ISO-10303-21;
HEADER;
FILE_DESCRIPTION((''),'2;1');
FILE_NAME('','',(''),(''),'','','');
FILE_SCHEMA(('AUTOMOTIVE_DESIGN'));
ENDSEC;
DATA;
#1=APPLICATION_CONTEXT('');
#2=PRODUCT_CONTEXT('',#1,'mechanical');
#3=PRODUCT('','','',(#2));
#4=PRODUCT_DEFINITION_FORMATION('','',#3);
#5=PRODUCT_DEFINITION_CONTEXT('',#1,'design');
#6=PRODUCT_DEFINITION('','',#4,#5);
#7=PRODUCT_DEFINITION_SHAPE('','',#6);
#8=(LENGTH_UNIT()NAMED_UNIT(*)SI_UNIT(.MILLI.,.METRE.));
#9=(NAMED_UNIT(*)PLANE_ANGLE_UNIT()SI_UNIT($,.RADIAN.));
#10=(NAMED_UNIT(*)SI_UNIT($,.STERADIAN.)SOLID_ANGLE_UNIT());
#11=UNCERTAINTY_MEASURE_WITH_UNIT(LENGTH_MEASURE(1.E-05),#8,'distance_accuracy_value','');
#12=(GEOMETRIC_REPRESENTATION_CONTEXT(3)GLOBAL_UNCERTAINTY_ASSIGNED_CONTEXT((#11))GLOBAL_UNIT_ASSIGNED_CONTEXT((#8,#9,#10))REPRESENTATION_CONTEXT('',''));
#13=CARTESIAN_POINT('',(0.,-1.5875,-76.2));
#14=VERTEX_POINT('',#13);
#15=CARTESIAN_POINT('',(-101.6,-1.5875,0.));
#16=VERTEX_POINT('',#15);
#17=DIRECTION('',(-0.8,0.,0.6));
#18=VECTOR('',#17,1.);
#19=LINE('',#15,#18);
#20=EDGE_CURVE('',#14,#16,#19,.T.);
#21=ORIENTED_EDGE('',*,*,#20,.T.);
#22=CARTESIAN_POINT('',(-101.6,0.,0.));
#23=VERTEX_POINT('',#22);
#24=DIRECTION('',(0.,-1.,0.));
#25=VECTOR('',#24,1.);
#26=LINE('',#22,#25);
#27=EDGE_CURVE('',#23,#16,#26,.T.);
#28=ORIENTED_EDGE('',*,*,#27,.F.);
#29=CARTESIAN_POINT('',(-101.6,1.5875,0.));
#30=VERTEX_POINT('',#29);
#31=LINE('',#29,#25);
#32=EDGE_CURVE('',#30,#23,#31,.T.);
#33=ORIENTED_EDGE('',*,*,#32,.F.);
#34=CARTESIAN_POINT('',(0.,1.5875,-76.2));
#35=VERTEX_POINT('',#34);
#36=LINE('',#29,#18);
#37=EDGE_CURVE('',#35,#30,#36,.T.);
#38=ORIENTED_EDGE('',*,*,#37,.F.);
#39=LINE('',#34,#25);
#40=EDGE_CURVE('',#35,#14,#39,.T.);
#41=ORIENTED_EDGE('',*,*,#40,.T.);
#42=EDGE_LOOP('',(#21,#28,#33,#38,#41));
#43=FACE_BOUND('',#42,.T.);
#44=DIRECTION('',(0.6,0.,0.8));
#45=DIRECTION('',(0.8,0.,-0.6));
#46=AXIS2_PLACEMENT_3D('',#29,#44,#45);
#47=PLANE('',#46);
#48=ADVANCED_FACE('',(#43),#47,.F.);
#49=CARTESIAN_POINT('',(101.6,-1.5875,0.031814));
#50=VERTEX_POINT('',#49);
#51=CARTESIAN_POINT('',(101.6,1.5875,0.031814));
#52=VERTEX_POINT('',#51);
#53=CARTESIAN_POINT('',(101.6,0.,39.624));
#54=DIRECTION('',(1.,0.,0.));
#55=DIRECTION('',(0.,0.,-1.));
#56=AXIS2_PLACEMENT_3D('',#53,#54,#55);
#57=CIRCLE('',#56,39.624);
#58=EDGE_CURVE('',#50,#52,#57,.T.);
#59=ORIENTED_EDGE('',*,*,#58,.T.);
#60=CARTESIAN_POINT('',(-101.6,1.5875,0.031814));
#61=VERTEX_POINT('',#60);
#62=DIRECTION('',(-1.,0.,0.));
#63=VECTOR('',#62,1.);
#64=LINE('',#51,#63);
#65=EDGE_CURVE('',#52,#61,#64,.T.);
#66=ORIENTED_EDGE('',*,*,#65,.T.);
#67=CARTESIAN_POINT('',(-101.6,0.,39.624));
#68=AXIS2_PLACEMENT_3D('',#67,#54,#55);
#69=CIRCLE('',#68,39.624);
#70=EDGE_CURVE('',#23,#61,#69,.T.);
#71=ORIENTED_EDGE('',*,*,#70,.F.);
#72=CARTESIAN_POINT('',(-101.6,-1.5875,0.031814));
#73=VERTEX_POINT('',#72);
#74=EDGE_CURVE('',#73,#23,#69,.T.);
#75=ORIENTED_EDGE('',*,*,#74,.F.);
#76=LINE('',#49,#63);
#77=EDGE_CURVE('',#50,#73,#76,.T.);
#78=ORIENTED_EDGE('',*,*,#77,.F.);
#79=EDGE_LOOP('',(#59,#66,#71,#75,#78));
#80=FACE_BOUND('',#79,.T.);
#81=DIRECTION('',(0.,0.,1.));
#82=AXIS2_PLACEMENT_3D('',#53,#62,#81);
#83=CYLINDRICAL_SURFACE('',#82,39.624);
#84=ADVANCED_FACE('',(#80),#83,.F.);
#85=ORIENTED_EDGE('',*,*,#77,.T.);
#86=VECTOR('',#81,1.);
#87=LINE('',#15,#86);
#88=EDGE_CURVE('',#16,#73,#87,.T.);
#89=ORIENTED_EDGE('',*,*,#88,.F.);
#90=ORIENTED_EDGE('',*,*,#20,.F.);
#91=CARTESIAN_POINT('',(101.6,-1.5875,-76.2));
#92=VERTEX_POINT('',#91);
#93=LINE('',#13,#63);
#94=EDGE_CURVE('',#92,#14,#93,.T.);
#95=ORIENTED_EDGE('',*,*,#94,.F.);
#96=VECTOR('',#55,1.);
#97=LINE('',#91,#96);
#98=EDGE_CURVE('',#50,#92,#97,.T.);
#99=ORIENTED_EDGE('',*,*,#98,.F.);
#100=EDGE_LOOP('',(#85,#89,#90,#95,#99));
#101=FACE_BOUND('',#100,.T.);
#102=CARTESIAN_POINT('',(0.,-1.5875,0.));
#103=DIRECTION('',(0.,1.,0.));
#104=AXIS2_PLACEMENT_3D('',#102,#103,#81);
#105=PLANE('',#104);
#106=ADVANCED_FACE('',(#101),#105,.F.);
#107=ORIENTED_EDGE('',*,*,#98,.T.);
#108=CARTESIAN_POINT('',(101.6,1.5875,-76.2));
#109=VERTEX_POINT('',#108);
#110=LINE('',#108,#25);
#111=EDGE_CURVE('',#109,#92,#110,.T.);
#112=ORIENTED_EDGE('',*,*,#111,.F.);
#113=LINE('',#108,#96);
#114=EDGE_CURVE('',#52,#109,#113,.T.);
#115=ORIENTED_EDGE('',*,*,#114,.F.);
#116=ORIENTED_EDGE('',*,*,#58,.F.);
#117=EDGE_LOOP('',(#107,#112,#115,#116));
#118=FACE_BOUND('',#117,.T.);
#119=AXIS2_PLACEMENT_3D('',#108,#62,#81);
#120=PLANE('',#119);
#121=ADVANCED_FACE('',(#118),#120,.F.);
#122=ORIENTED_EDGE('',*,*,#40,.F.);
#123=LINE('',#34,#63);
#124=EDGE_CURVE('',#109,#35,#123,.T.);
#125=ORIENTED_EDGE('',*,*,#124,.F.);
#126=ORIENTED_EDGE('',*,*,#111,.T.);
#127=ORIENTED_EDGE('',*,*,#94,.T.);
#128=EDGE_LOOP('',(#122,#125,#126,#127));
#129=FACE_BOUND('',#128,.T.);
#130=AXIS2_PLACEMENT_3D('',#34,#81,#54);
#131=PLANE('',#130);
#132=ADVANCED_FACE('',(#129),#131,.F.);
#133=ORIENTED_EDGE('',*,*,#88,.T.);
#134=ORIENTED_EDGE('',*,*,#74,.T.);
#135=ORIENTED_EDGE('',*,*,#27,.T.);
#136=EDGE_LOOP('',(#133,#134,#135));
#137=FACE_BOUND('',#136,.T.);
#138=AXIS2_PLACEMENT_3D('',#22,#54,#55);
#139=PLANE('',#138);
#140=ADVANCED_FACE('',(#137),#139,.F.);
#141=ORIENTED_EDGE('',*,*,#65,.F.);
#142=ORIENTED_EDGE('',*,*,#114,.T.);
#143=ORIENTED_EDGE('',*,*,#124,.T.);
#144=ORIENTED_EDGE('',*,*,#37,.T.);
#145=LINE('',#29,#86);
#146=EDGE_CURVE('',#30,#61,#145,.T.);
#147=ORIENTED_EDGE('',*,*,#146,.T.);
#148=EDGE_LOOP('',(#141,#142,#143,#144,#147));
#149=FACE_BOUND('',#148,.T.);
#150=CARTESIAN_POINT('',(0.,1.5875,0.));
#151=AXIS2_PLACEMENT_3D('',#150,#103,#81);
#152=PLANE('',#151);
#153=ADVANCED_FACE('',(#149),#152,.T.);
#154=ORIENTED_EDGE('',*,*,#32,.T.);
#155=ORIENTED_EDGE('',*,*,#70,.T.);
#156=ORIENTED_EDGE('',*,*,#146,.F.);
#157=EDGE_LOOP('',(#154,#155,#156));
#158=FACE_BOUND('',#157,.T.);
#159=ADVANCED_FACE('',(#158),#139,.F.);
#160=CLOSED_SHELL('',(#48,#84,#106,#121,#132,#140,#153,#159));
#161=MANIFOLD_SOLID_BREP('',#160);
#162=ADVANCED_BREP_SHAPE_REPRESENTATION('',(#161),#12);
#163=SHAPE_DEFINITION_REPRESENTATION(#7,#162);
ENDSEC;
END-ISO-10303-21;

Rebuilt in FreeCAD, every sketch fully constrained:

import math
import FreeCAD as App
import Part
import Sketcher
Q = App.Units.Quantity

doc = App.newDocument("Part")
body = doc.addObject("PartDesign::Body", "Body")

# Sketch on XZ plane
sketch1 = body.newObject("Sketcher::SketchObject", "Sketch")
sketch1.AttachmentSupport = (doc.getObject("XZ_Plane"), [""])
sketch1.MapMode = "FlatFace"
sketch1.addGeometry([
    Part.LineSegment(App.Vector(-101.6, 0, 0), App.Vector(101.6, 0, 0)),
    Part.LineSegment(App.Vector(101.6, 0, 0), App.Vector(101.6, -76.2, 0)),
    Part.LineSegment(App.Vector(101.6, -76.2, 0), App.Vector(0, -76.2, 0)),
    Part.LineSegment(App.Vector(0, -76.2, 0), App.Vector(-101.6, 0, 0)),
], False)
sketch1.addConstraint([
    Sketcher.Constraint("Coincident", 0, 2, 1, 1),
    Sketcher.Constraint("Coincident", 1, 2, 2, 1),
    Sketcher.Constraint("Coincident", 2, 2, 3, 1),
    Sketcher.Constraint("Coincident", 3, 2, 0, 1),
    Sketcher.Constraint("Horizontal", 0),
    Sketcher.Constraint("Vertical", 1),
    Sketcher.Constraint("Horizontal", 2),
    Sketcher.Constraint("Symmetric", 0, 2, 3, 2, -1, 1),
    Sketcher.Constraint("PointOnObject", 2, 2, -2),
    Sketcher.Constraint("DistanceX", 0, 1, 0, 2, Q("8 in")),
    Sketcher.Constraint("DistanceY", 1, 2, 1, 1, Q("3 in")),
])
pad1 = body.newObject("PartDesign::Pad", "Pad")
pad1.Profile = sketch1
pad1.Length = Q("0.125 in")
pad1.Midplane = True

# Sketch on YZ plane
sketch2 = body.newObject("Sketcher::SketchObject", "Sketch001")
sketch2.AttachmentSupport = (doc.getObject("YZ_Plane"), [""])
sketch2.MapMode = "FlatFace"
sketch2.addGeometry([
    Part.ArcOfCircle(Part.Circle(App.Vector(0, 39.623989, 0), App.Vector(0, 0, 1), 39.623989), math.radians(-92.296119), math.radians(-91.147829)),  # 0
    Part.LineSegment(App.Vector(-1.5875, 0.031814, 0), App.Vector(-1.5875, 0, 0)),  # 1
    Part.LineSegment(App.Vector(-1.5875, 0, 0), App.Vector(0, 0, 0)),  # 2
    Part.ArcOfCircle(Part.Circle(App.Vector(0, 39.623993, 0), App.Vector(0, 0, 1), 39.623993), math.radians(-91.147829), math.radians(-90)),  # 3
    Part.LineSegment(App.Vector(0, 0, 0), App.Vector(1.5875, 0, 0)),  # 4
    Part.LineSegment(App.Vector(1.5875, 0, 0), App.Vector(1.5875, 0.031814, 0)),  # 5
    Part.ArcOfCircle(Part.Circle(App.Vector(0, 39.624002, 0), App.Vector(0, 0, 1), 39.624002), math.radians(-90), math.radians(-87.703882)),  # 6
], False)
sketch2.addConstraint([
    Sketcher.Constraint("Coincident", 0, 1, 1, 1),
    Sketcher.Constraint("Coincident", 1, 2, 2, 1),
    Sketcher.Constraint("Tangent", 2, 2, 3, 2),
    Sketcher.Constraint("Tangent", 3, 1, 0, 2),
    Sketcher.Constraint("Coincident", 4, 2, 5, 1),
    Sketcher.Constraint("Coincident", 5, 2, 6, 2),
    Sketcher.Constraint("Tangent", 6, 1, 4, 1),
    Sketcher.Constraint("Vertical", 1),
    Sketcher.Constraint("Horizontal", 2),
    Sketcher.Constraint("Horizontal", 4),
    Sketcher.Constraint("Vertical", 5),
    Sketcher.Constraint("Coincident", 2, 2, -1, 1),
    Sketcher.Constraint("Coincident", 6, 1, -1, 1),
    Sketcher.Constraint("PointOnObject", 0, 3, -2),
    Sketcher.Constraint("Horizontal", 0, 1, 5, 2),
    Sketcher.Constraint("Equal", 2, 4),
    Sketcher.Constraint("Radius", 6, Q("1.5600001 in")),
    Sketcher.Constraint("DistanceX", 2, 1, 2, 2, Q("0.0625 in")),
    Sketcher.Constraint("DistanceX", 3, 1, -1, 1, Q("0.03125 in")),
])
pad2 = body.newObject("PartDesign::Pad", "Pad001")
pad2.Profile = sketch2
pad2.Length = Q("8 in")
pad2.Midplane = True

doc.recompute()
